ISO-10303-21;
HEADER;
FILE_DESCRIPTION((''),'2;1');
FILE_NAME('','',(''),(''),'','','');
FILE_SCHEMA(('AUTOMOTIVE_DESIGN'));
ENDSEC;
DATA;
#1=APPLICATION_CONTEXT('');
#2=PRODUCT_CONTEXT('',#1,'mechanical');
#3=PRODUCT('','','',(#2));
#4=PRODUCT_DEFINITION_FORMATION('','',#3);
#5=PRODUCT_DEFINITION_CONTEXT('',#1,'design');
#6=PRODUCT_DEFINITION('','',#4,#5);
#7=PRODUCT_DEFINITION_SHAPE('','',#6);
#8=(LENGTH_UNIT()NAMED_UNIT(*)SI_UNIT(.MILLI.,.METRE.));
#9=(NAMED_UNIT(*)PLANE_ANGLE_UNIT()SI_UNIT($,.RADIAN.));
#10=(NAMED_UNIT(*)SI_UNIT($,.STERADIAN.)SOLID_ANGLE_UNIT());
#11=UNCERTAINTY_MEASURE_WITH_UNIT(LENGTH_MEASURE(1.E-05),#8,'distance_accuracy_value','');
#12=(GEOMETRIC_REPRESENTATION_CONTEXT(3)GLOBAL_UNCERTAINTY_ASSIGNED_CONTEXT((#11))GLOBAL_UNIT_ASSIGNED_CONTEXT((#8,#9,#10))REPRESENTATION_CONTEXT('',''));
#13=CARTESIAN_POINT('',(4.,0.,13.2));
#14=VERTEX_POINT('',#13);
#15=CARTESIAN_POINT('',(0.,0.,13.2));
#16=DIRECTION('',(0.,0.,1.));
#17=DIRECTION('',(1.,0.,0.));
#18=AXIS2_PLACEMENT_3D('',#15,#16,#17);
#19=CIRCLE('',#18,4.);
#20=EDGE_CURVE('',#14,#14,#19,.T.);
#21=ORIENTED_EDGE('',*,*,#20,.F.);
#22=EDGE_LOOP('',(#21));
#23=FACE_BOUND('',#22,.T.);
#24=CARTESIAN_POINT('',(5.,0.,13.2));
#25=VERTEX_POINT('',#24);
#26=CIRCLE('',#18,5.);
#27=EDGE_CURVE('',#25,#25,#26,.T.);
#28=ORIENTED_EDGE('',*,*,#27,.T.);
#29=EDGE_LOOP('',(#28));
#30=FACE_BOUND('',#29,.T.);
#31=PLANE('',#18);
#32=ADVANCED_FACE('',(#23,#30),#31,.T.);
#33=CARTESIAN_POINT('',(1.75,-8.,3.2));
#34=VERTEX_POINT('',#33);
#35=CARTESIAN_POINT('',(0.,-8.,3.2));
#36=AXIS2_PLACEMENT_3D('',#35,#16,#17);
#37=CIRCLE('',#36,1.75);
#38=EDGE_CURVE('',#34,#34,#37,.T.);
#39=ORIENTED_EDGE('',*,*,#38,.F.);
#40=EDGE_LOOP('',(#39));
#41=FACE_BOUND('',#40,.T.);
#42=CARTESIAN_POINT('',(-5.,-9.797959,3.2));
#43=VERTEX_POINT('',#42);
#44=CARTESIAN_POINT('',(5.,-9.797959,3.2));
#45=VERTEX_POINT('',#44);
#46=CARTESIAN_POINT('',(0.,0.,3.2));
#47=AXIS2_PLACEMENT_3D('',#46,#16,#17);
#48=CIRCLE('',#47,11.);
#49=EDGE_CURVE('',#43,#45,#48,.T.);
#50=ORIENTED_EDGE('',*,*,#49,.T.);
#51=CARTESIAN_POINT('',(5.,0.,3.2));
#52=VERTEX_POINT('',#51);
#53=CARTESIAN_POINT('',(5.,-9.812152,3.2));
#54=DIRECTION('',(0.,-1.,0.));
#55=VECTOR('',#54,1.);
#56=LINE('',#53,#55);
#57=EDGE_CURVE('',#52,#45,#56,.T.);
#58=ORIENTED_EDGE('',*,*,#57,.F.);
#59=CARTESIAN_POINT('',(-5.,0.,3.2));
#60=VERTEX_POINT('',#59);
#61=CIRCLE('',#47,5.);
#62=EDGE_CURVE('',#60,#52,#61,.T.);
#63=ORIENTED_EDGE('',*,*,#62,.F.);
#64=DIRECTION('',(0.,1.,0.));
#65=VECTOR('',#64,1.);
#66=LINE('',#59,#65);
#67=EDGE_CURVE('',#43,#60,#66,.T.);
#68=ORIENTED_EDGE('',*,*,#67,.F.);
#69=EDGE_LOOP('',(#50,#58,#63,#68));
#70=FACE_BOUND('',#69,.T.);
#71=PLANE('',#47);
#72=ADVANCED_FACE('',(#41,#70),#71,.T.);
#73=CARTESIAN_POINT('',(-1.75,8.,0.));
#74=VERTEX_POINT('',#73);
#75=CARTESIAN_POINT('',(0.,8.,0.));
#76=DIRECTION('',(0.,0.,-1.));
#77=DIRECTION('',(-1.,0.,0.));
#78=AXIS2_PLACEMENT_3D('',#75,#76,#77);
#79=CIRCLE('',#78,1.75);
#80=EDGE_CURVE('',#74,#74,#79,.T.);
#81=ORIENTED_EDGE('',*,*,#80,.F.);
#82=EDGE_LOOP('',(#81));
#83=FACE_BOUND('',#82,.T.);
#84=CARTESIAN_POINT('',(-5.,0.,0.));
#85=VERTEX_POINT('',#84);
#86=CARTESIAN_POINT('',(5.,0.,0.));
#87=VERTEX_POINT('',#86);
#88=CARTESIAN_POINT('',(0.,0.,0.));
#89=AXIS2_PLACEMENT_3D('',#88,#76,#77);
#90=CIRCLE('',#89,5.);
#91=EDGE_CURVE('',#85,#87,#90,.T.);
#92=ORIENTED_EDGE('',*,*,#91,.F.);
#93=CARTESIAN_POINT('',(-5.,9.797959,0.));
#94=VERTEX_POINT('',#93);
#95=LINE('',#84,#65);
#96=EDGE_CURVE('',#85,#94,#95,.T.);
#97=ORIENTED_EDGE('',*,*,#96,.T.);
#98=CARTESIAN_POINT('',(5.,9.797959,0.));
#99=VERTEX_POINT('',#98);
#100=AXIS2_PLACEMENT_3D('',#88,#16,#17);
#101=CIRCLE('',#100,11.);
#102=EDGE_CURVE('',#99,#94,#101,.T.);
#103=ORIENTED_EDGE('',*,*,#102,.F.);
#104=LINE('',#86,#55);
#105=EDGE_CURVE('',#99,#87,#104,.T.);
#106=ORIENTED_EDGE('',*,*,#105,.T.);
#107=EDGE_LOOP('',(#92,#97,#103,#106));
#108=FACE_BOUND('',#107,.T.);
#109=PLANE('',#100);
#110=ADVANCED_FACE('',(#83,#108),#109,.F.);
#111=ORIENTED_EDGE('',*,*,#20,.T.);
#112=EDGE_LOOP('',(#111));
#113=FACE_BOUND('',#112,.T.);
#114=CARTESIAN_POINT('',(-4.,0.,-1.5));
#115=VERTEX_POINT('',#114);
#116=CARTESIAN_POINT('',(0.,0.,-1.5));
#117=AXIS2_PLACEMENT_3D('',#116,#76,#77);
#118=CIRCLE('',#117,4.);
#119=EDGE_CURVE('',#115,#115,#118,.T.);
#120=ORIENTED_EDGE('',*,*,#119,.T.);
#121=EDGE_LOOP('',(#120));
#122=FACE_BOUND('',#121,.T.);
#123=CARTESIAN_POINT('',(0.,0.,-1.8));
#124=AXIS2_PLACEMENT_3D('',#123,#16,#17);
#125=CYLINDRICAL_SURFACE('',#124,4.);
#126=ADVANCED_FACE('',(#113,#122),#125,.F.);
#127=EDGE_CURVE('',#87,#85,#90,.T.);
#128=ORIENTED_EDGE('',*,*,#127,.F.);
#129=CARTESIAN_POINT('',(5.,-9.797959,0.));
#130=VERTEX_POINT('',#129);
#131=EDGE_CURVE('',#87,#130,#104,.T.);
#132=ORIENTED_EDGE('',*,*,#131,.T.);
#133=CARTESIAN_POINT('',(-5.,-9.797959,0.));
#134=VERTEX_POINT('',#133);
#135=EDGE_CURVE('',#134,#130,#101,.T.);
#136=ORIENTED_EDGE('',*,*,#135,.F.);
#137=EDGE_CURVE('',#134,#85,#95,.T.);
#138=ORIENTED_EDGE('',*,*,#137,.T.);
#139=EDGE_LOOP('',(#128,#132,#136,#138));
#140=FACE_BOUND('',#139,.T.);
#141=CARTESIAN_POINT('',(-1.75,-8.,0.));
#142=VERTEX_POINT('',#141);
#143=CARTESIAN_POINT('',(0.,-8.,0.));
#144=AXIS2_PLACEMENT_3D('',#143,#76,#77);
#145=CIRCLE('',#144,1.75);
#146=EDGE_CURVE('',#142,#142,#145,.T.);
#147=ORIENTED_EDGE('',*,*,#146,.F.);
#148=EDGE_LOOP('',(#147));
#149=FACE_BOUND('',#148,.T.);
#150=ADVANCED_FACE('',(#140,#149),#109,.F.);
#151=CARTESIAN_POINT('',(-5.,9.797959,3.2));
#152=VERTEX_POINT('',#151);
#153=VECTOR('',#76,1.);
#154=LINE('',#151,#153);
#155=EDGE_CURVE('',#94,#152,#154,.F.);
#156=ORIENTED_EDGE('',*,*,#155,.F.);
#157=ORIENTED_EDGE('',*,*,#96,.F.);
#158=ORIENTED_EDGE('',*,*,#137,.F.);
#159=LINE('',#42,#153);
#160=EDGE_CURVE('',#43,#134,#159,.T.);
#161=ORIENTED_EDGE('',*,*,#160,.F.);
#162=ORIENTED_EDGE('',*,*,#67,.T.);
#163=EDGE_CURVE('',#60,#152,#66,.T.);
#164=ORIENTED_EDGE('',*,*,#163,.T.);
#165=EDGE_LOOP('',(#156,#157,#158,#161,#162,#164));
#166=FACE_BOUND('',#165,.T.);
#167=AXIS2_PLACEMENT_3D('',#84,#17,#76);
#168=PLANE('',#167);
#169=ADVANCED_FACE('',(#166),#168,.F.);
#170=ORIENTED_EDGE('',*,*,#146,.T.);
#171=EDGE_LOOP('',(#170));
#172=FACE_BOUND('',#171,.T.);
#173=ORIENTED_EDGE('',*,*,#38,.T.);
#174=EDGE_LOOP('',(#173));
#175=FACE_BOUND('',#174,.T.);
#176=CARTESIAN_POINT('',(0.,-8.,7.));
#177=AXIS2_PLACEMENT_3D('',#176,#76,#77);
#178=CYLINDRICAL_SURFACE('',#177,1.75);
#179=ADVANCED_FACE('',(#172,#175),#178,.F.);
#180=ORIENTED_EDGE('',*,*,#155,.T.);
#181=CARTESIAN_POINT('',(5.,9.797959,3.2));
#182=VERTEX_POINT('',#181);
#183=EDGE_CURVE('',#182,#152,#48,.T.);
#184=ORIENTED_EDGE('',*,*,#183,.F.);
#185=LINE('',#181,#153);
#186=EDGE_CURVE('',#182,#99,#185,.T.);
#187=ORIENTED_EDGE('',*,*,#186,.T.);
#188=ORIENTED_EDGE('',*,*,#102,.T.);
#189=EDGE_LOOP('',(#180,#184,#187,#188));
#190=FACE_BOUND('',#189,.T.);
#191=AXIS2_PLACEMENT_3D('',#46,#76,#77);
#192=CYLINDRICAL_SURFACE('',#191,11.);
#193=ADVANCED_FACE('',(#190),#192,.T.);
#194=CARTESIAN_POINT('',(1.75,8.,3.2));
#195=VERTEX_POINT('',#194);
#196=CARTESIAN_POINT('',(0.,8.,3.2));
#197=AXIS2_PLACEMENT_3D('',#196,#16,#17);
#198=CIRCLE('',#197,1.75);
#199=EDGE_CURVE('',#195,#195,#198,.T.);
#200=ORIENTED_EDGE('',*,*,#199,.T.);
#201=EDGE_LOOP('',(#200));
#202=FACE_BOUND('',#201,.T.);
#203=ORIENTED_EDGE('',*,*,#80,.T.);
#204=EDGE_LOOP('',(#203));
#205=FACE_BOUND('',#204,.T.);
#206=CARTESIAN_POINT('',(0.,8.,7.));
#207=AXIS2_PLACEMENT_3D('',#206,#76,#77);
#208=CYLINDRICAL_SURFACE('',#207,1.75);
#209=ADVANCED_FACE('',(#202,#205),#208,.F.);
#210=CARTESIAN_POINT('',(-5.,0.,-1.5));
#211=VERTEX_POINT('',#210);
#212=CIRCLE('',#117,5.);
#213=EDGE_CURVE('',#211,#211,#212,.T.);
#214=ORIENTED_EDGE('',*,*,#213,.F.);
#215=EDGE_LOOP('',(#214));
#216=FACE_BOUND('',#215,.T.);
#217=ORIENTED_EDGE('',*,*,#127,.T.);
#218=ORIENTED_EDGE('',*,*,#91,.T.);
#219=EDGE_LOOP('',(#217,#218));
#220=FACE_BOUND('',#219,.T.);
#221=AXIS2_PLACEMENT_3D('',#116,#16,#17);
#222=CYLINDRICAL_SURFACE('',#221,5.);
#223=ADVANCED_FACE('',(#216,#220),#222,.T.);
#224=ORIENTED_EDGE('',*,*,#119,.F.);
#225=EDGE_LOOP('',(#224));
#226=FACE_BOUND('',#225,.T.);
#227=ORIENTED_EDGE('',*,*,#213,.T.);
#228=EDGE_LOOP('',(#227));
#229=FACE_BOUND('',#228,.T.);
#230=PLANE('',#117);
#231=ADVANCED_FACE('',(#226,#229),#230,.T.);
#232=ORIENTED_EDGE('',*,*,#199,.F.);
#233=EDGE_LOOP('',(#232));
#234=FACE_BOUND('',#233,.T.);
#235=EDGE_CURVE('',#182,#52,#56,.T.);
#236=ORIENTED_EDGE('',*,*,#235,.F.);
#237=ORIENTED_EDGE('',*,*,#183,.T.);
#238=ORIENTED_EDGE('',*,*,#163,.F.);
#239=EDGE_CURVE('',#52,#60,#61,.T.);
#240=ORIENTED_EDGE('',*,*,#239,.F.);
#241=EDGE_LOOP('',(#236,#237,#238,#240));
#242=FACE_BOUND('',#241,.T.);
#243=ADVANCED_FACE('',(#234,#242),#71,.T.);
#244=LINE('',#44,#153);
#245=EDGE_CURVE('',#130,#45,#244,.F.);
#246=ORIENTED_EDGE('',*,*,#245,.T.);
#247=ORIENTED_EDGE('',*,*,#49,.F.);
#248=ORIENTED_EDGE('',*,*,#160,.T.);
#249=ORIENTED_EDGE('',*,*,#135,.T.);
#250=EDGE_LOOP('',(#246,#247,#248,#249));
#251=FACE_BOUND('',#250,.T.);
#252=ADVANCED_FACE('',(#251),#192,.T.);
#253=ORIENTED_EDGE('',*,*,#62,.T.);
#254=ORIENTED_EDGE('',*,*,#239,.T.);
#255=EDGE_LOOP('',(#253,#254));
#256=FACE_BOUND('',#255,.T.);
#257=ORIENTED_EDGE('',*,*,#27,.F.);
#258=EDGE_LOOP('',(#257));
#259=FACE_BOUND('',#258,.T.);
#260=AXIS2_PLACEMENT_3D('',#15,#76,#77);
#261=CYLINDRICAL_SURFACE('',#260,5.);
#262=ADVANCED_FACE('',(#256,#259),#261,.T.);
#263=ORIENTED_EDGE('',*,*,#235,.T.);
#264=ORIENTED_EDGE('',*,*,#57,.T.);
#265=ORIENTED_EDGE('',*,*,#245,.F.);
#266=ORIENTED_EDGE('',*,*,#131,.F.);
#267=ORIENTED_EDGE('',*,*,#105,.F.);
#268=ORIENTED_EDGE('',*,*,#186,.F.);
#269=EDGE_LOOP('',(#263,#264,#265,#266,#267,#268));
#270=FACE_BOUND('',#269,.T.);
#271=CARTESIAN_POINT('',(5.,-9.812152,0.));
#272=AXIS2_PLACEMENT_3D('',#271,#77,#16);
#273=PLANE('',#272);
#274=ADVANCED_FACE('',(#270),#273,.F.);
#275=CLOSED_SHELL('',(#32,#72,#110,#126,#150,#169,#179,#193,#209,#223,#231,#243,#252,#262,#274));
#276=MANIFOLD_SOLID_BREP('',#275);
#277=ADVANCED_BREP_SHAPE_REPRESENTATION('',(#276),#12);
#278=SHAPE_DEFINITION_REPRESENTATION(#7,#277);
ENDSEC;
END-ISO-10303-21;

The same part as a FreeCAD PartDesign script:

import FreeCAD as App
import Part
import Sketcher
Q = App.Units.Quantity


def add_polygon(sketch, points):
    """Adds a closed chain of lines whose ends are joined by coincident constraints."""
    first, n = sketch.GeometryCount, len(points)
    for a, b in zip(points, points[1:] + points[:1]):
        sketch.addGeometry(Part.LineSegment(App.Vector(*a, 0), App.Vector(*b, 0)), False)
    for i in range(n):
        sketch.addConstraint(Sketcher.Constraint("Coincident", first + i, 2, first + (i + 1) % n, 1))

doc = App.newDocument("Part")
body = doc.addObject("PartDesign::Body", "Body")

sketch1 = body.newObject("Sketcher::SketchObject", "Sketch")
sketch1.AttachmentSupport = (doc.getObject("XY_Plane"), [""])
sketch1.MapMode = "FlatFace"
sketch1.addGeometry(Part.Circle(App.Vector(0, 0, 0), App.Vector(0, 0, 1), 11), False)
sketch1.addConstraint(Sketcher.Constraint("Coincident", 0, 3, -1, 1))
sketch1.addConstraint(Sketcher.Constraint("Diameter", 0, Q("22 mm")))
pad1 = body.newObject("PartDesign::Pad", "Pad")
pad1.Profile = sketch1
pad1.Length = 3.2

sketch2 = body.newObject("Sketcher::SketchObject", "Sketch001")
sketch2.AttachmentSupport = (doc.getObject("XY_Plane"), [""])
sketch2.MapMode = "FlatFace"
sketch2.AttachmentOffset = App.Placement(App.Vector(0, 0, 3.2), App.Rotation())
sketch2.addGeometry(Part.Circle(App.Vector(0, 0, 0), App.Vector(0, 0, 1), 5), False)
sketch2.addConstraint(Sketcher.Constraint("Coincident", 0, 3, -1, 1))
sketch2.addConstraint(Sketcher.Constraint("Diameter", 0, Q("10 mm")))
pad2 = body.newObject("PartDesign::Pad", "Pad001")
pad2.Profile = sketch2
pad2.Length = 10

sketch3 = body.newObject("Sketcher::SketchObject", "Sketch002")
sketch3.AttachmentSupport = (doc.getObject("XY_Plane"), [""])
sketch3.MapMode = "FlatFace"
sketch3.AttachmentOffset = App.Placement(App.Vector(0, 0, 13.2), App.Rotation())
sketch3.addGeometry(Part.Circle(App.Vector(0, 0, 0), App.Vector(0, 0, 1), 4), False)
sketch3.addConstraint(Sketcher.Constraint("Coincident", 0, 3, -1, 1))
sketch3.addConstraint(Sketcher.Constraint("Diameter", 0, Q("8 mm")))
pocket1 = body.newObject("PartDesign::Pocket", "Pocket")
pocket1.Profile = sketch3
pocket1.Length = 15

sketch4 = body.newObject("Sketcher::SketchObject", "Sketch003")
sketch4.AttachmentSupport = (doc.getObject("XY_Plane"), [""])
sketch4.MapMode = "FlatFace"
sketch4.addGeometry(Part.Circle(App.Vector(0, 8, 0), App.Vector(0, 0, 1), 1.75), False)
sketch4.addGeometry(Part.Circle(App.Vector(0, -8, 0), App.Vector(0, 0, 1), 1.75), False)
sketch4.addConstraint(Sketcher.Constraint("Equal", 0, 1))
sketch4.addConstraint(Sketcher.Constraint("Symmetric", 0, 3, 1, 3, -1, 1))
sketch4.addConstraint(Sketcher.Constraint("PointOnObject", 0, 3, -2))
sketch4.addConstraint(Sketcher.Constraint("Diameter", 0, Q("3.5 mm")))
sketch4.addConstraint(Sketcher.Constraint("DistanceY", -1, 1, 0, 3, Q("8 mm")))
pocket2 = body.newObject("PartDesign::Pocket", "Pocket001")
pocket2.Profile = sketch4
pocket2.Length = 7
pocket2.Reversed = True

sketch5 = body.newObject("Sketcher::SketchObject", "Sketch004")
sketch5.AttachmentSupport = (doc.getObject("XY_Plane"), [""])
sketch5.MapMode = "FlatFace"
sketch5.AttachmentOffset = App.Placement(App.Vector(0, 0, 3.2), App.Rotation())
add_polygon(sketch5, [(-5, 10.33477), (-11, 10.33477), (-11, -9.812152), (-5, -9.812152)])
add_polygon(sketch5, [(5, -9.812152), (11, -9.812152), (11, 10.33477), (5, 10.33477)])
sketch5.addConstraint(Sketcher.Constraint("Horizontal", 0))
sketch5.addConstraint(Sketcher.Constraint("Vertical", 1))
sketch5.addConstraint(Sketcher.Constraint("Horizontal", 2))
sketch5.addConstraint(Sketcher.Constraint("Vertical", 3))
sketch5.addConstraint(Sketcher.Constraint("Horizontal", 4))
sketch5.addConstraint(Sketcher.Constraint("Vertical", 5))
sketch5.addConstraint(Sketcher.Constraint("Horizontal", 6))
sketch5.addConstraint(Sketcher.Constraint("Vertical", 7))
sketch5.addConstraint(Sketcher.Constraint("Symmetric", 1, 2, 4, 2, -2))
sketch5.addConstraint(Sketcher.Constraint("Symmetric", 3, 2, 6, 2, -2))
sketch5.addConstraint(Sketcher.Constraint("DistanceX", 0, 2, 0, 1, Q("6 mm")))
sketch5.addConstraint(Sketcher.Constraint("DistanceX", 0, 2, -1, 1, Q("11 mm")))
sketch5.addConstraint(Sketcher.Constraint("DistanceY", 1, 2, 1, 1, Q("20.146922 mm")))
sketch5.addConstraint(Sketcher.Constraint("DistanceY", -1, 1, 0, 2, Q("10.33477 mm")))
pocket3 = body.newObject("PartDesign::Pocket", "Pocket002")
pocket3.Profile = sketch5
pocket3.Type = "ThroughAll"

sketch6 = body.newObject("Sketcher::SketchObject", "Sketch005")
sketch6.AttachmentSupport = (doc.getObject("XY_Plane"), [""])
sketch6.MapMode = "FlatFace"
sketch6.addGeometry(Part.Circle(App.Vector(0, 0, 0), App.Vector(0, 0, 1), 5), False)
sketch6.addGeometry(Part.Circle(App.Vector(0, 0, 0), App.Vector(0, 0, 1), 4), False)
sketch6.addConstraint(Sketcher.Constraint("Coincident", 0, 3, -1, 1))
sketch6.addConstraint(Sketcher.Constraint("Coincident", 1, 3, -1, 1))
sketch6.addConstraint(Sketcher.Constraint("Diameter", 0, Q("10 mm")))
sketch6.addConstraint(Sketcher.Constraint("Diameter", 1, Q("8 mm")))
pad3 = body.newObject("PartDesign::Pad", "Pad002")
pad3.Profile = sketch6
pad3.Length = 1.5
pad3.Reversed = True

doc.recompute()
